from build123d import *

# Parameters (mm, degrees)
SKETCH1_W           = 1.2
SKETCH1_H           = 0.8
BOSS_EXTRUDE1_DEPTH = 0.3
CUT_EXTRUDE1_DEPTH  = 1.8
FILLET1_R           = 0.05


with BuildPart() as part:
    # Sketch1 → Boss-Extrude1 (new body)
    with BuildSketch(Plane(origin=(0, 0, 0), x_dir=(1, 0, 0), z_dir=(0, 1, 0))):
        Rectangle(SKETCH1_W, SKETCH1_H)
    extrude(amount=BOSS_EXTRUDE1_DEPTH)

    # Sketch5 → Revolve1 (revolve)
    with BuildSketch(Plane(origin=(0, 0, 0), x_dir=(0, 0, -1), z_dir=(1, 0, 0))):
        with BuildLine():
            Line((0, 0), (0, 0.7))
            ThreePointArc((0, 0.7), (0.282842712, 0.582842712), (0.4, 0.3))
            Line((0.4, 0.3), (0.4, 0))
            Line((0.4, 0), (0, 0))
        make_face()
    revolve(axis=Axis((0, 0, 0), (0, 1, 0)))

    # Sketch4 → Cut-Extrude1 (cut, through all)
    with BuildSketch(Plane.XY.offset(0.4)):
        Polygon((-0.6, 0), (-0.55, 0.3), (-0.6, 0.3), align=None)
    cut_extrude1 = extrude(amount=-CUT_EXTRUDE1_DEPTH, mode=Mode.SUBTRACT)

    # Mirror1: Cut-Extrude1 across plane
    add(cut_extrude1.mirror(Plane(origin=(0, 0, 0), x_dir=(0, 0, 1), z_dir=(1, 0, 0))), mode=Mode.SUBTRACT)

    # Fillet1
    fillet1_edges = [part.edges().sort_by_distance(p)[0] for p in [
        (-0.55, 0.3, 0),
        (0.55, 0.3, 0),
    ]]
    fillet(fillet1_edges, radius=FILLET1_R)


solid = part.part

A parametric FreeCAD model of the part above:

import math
import FreeCAD as App
import Part
import Sketcher

V = App.Vector
Q = App.Units.Quantity


def edges_at(feature, points):
    """Names of the edges that pass closest to the given points."""
    edges = feature.Shape.Edges
    near = lambda p: min(range(len(edges)), key=lambda i: edges[i].distToShape(Part.Vertex(*p))[0])
    return sorted({f"Edge{near(p) + 1}" for p in points})

doc = App.newDocument("Part")
body = doc.addObject("PartDesign::Body", "Body")

# Sketch on XZ plane
sketch1 = body.newObject("Sketcher::SketchObject", "Sketch")
sketch1.AttachmentSupport = (doc.getObject("XZ_Plane"), [""])
sketch1.MapMode = "FlatFace"
sketch1.addGeometry(Part.LineSegment(V(-0.6, -0.4, 0), V(-0.6, 0.4, 0)), False)
sketch1.addGeometry(Part.LineSegment(V(-0.6, 0.4, 0), V(0.6, 0.4, 0)), False)
sketch1.addGeometry(Part.LineSegment(V(0.6, 0.4, 0), V(0.6, -0.4, 0)), False)
sketch1.addGeometry(Part.LineSegment(V(0.6, -0.4, 0), V(-0.6, -0.4, 0)), False)
sketch1.addConstraint(Sketcher.Constraint("Coincident", 0, 2, 1, 1))
sketch1.addConstraint(Sketcher.Constraint("Coincident", 1, 2, 2, 1))
sketch1.addConstraint(Sketcher.Constraint("Coincident", 2, 2, 3, 1))
sketch1.addConstraint(Sketcher.Constraint("Coincident", 3, 2, 0, 1))
sketch1.addConstraint(Sketcher.Constraint("Vertical", 0))
sketch1.addConstraint(Sketcher.Constraint("Horizontal", 1))
sketch1.addConstraint(Sketcher.Constraint("Vertical", 2))
sketch1.addConstraint(Sketcher.Constraint("Horizontal", 3))
sketch1.addConstraint(Sketcher.Constraint("Symmetric", 0, 2, 2, 2, -1, 1))
sketch1.addConstraint(Sketcher.Constraint("DistanceX", 1, 1, 1, 2, Q("1.2 mm")))
sketch1.addConstraint(Sketcher.Constraint("DistanceY", 0, 1, 0, 2, Q("0.8 mm")))
pad1 = body.newObject("PartDesign::Pad", "Pad")
pad1.Profile = sketch1
pad1.Length = 0.3
pad1.Reversed = True

# Sketch on YZ plane
sketch2 = body.newObject("Sketcher::SketchObject", "Sketch001")
sketch2.AttachmentSupport = (doc.getObject("YZ_Plane"), [""])
sketch2.MapMode = "FlatFace"
sketch2.addGeometry(Part.LineSegment(V(0.7, 0, 0), V(0, 0, 0)), False)
sketch2.addGeometry(Part.LineSegment(V(0, 0, 0), V(0, -0.4, 0)), False)
sketch2.addGeometry(Part.LineSegment(V(0, -0.4, 0), V(0.3, -0.4, 0)), False)
sketch2.addGeometry(Part.ArcOfCircle(Part.Circle(V(0.3, 0, 0), V(0, 0, 1), 0.4), math.radians(-90), math.radians(0)), False)
sketch2.addConstraint(Sketcher.Constraint("Coincident", 0, 2, 1, 1))
sketch2.addConstraint(Sketcher.Constraint("Coincident", 1, 2, 2, 1))
sketch2.addConstraint(Sketcher.Constraint("Tangent", 2, 2, 3, 1))
sketch2.addConstraint(Sketcher.Constraint("Coincident", 3, 2, 0, 1))
sketch2.addConstraint(Sketcher.Constraint("Horizontal", 0))
sketch2.addConstraint(Sketcher.Constraint("Vertical", 1))
sketch2.addConstraint(Sketcher.Constraint("Horizontal", 2))
sketch2.addConstraint(Sketcher.Constraint("Coincident", 0, 2, -1, 1))
sketch2.addConstraint(Sketcher.Constraint("PointOnObject", 3, 3, -1))
sketch2.addConstraint(Sketcher.Constraint("Radius", 3, Q("0.4 mm")))
sketch2.addConstraint(Sketcher.Constraint("DistanceX", 0, 2, 0, 1, Q("0.7 mm")))
revolution = body.newObject("PartDesign::Revolution", "Revolution")
revolution.Profile = sketch2
revolution.ReferenceAxis = (sketch2, ["H_Axis"])
revolution.Angle = 360

# Sketch on XY plane
sketch3 = body.newObject("Sketcher::SketchObject", "Sketch002")
sketch3.AttachmentSupport = (doc.getObject("XY_Plane"), [""])
sketch3.MapMode = "FlatFace"
sketch3.AttachmentOffset = App.Placement(V(0, 0, 0.4), App.Rotation())
sketch3.addGeometry(Part.LineSegment(V(-0.6, 0, 0), V(-0.55, 0.3, 0)), False)
sketch3.addGeometry(Part.LineSegment(V(-0.55, 0.3, 0), V(-0.6, 0.3, 0)), False)
sketch3.addGeometry(Part.LineSegment(V(-0.6, 0.3, 0), V(-0.6, 0, 0)), False)
sketch3.addConstraint(Sketcher.Constraint("Coincident", 0, 2, 1, 1))
sketch3.addConstraint(Sketcher.Constraint("Coincident", 1, 2, 2, 1))
sketch3.addConstraint(Sketcher.Constraint("Coincident", 2, 2, 0, 1))
sketch3.addConstraint(Sketcher.Constraint("Horizontal", 1))
sketch3.addConstraint(Sketcher.Constraint("Vertical", 2))
sketch3.addConstraint(Sketcher.Constraint("PointOnObject", 2, 2, -1))
sketch3.addConstraint(Sketcher.Constraint("DistanceY", 2, 2, 2, 1, Q("0.3 mm")))
sketch3.addConstraint(Sketcher.Constraint("DistanceX", 1, 2, 1, 1, Q("0.05 mm")))
sketch3.addConstraint(Sketcher.Constraint("DistanceX", 1, 2, -1, 1, Q("0.6 mm")))
pocket1 = body.newObject("PartDesign::Pocket", "Pocket")
pocket1.Profile = sketch3
pocket1.Type = "ThroughAll"
doc.recompute()

mirrored = body.newObject("PartDesign::Mirrored", "Mirrored")
mirrored.Originals = [pocket1]
mirrored.MirrorPlane = (doc.getObject("YZ_Plane"), [""])
body.Tip = mirrored
doc.recompute()

fillet = body.newObject("PartDesign::Fillet", "Fillet")
fillet.Base = (mirrored, edges_at(mirrored, [(-0.55, 0.3, 0), (0.55, 0.3, 0)]))
fillet.Radius = 0.05

doc.recompute()
